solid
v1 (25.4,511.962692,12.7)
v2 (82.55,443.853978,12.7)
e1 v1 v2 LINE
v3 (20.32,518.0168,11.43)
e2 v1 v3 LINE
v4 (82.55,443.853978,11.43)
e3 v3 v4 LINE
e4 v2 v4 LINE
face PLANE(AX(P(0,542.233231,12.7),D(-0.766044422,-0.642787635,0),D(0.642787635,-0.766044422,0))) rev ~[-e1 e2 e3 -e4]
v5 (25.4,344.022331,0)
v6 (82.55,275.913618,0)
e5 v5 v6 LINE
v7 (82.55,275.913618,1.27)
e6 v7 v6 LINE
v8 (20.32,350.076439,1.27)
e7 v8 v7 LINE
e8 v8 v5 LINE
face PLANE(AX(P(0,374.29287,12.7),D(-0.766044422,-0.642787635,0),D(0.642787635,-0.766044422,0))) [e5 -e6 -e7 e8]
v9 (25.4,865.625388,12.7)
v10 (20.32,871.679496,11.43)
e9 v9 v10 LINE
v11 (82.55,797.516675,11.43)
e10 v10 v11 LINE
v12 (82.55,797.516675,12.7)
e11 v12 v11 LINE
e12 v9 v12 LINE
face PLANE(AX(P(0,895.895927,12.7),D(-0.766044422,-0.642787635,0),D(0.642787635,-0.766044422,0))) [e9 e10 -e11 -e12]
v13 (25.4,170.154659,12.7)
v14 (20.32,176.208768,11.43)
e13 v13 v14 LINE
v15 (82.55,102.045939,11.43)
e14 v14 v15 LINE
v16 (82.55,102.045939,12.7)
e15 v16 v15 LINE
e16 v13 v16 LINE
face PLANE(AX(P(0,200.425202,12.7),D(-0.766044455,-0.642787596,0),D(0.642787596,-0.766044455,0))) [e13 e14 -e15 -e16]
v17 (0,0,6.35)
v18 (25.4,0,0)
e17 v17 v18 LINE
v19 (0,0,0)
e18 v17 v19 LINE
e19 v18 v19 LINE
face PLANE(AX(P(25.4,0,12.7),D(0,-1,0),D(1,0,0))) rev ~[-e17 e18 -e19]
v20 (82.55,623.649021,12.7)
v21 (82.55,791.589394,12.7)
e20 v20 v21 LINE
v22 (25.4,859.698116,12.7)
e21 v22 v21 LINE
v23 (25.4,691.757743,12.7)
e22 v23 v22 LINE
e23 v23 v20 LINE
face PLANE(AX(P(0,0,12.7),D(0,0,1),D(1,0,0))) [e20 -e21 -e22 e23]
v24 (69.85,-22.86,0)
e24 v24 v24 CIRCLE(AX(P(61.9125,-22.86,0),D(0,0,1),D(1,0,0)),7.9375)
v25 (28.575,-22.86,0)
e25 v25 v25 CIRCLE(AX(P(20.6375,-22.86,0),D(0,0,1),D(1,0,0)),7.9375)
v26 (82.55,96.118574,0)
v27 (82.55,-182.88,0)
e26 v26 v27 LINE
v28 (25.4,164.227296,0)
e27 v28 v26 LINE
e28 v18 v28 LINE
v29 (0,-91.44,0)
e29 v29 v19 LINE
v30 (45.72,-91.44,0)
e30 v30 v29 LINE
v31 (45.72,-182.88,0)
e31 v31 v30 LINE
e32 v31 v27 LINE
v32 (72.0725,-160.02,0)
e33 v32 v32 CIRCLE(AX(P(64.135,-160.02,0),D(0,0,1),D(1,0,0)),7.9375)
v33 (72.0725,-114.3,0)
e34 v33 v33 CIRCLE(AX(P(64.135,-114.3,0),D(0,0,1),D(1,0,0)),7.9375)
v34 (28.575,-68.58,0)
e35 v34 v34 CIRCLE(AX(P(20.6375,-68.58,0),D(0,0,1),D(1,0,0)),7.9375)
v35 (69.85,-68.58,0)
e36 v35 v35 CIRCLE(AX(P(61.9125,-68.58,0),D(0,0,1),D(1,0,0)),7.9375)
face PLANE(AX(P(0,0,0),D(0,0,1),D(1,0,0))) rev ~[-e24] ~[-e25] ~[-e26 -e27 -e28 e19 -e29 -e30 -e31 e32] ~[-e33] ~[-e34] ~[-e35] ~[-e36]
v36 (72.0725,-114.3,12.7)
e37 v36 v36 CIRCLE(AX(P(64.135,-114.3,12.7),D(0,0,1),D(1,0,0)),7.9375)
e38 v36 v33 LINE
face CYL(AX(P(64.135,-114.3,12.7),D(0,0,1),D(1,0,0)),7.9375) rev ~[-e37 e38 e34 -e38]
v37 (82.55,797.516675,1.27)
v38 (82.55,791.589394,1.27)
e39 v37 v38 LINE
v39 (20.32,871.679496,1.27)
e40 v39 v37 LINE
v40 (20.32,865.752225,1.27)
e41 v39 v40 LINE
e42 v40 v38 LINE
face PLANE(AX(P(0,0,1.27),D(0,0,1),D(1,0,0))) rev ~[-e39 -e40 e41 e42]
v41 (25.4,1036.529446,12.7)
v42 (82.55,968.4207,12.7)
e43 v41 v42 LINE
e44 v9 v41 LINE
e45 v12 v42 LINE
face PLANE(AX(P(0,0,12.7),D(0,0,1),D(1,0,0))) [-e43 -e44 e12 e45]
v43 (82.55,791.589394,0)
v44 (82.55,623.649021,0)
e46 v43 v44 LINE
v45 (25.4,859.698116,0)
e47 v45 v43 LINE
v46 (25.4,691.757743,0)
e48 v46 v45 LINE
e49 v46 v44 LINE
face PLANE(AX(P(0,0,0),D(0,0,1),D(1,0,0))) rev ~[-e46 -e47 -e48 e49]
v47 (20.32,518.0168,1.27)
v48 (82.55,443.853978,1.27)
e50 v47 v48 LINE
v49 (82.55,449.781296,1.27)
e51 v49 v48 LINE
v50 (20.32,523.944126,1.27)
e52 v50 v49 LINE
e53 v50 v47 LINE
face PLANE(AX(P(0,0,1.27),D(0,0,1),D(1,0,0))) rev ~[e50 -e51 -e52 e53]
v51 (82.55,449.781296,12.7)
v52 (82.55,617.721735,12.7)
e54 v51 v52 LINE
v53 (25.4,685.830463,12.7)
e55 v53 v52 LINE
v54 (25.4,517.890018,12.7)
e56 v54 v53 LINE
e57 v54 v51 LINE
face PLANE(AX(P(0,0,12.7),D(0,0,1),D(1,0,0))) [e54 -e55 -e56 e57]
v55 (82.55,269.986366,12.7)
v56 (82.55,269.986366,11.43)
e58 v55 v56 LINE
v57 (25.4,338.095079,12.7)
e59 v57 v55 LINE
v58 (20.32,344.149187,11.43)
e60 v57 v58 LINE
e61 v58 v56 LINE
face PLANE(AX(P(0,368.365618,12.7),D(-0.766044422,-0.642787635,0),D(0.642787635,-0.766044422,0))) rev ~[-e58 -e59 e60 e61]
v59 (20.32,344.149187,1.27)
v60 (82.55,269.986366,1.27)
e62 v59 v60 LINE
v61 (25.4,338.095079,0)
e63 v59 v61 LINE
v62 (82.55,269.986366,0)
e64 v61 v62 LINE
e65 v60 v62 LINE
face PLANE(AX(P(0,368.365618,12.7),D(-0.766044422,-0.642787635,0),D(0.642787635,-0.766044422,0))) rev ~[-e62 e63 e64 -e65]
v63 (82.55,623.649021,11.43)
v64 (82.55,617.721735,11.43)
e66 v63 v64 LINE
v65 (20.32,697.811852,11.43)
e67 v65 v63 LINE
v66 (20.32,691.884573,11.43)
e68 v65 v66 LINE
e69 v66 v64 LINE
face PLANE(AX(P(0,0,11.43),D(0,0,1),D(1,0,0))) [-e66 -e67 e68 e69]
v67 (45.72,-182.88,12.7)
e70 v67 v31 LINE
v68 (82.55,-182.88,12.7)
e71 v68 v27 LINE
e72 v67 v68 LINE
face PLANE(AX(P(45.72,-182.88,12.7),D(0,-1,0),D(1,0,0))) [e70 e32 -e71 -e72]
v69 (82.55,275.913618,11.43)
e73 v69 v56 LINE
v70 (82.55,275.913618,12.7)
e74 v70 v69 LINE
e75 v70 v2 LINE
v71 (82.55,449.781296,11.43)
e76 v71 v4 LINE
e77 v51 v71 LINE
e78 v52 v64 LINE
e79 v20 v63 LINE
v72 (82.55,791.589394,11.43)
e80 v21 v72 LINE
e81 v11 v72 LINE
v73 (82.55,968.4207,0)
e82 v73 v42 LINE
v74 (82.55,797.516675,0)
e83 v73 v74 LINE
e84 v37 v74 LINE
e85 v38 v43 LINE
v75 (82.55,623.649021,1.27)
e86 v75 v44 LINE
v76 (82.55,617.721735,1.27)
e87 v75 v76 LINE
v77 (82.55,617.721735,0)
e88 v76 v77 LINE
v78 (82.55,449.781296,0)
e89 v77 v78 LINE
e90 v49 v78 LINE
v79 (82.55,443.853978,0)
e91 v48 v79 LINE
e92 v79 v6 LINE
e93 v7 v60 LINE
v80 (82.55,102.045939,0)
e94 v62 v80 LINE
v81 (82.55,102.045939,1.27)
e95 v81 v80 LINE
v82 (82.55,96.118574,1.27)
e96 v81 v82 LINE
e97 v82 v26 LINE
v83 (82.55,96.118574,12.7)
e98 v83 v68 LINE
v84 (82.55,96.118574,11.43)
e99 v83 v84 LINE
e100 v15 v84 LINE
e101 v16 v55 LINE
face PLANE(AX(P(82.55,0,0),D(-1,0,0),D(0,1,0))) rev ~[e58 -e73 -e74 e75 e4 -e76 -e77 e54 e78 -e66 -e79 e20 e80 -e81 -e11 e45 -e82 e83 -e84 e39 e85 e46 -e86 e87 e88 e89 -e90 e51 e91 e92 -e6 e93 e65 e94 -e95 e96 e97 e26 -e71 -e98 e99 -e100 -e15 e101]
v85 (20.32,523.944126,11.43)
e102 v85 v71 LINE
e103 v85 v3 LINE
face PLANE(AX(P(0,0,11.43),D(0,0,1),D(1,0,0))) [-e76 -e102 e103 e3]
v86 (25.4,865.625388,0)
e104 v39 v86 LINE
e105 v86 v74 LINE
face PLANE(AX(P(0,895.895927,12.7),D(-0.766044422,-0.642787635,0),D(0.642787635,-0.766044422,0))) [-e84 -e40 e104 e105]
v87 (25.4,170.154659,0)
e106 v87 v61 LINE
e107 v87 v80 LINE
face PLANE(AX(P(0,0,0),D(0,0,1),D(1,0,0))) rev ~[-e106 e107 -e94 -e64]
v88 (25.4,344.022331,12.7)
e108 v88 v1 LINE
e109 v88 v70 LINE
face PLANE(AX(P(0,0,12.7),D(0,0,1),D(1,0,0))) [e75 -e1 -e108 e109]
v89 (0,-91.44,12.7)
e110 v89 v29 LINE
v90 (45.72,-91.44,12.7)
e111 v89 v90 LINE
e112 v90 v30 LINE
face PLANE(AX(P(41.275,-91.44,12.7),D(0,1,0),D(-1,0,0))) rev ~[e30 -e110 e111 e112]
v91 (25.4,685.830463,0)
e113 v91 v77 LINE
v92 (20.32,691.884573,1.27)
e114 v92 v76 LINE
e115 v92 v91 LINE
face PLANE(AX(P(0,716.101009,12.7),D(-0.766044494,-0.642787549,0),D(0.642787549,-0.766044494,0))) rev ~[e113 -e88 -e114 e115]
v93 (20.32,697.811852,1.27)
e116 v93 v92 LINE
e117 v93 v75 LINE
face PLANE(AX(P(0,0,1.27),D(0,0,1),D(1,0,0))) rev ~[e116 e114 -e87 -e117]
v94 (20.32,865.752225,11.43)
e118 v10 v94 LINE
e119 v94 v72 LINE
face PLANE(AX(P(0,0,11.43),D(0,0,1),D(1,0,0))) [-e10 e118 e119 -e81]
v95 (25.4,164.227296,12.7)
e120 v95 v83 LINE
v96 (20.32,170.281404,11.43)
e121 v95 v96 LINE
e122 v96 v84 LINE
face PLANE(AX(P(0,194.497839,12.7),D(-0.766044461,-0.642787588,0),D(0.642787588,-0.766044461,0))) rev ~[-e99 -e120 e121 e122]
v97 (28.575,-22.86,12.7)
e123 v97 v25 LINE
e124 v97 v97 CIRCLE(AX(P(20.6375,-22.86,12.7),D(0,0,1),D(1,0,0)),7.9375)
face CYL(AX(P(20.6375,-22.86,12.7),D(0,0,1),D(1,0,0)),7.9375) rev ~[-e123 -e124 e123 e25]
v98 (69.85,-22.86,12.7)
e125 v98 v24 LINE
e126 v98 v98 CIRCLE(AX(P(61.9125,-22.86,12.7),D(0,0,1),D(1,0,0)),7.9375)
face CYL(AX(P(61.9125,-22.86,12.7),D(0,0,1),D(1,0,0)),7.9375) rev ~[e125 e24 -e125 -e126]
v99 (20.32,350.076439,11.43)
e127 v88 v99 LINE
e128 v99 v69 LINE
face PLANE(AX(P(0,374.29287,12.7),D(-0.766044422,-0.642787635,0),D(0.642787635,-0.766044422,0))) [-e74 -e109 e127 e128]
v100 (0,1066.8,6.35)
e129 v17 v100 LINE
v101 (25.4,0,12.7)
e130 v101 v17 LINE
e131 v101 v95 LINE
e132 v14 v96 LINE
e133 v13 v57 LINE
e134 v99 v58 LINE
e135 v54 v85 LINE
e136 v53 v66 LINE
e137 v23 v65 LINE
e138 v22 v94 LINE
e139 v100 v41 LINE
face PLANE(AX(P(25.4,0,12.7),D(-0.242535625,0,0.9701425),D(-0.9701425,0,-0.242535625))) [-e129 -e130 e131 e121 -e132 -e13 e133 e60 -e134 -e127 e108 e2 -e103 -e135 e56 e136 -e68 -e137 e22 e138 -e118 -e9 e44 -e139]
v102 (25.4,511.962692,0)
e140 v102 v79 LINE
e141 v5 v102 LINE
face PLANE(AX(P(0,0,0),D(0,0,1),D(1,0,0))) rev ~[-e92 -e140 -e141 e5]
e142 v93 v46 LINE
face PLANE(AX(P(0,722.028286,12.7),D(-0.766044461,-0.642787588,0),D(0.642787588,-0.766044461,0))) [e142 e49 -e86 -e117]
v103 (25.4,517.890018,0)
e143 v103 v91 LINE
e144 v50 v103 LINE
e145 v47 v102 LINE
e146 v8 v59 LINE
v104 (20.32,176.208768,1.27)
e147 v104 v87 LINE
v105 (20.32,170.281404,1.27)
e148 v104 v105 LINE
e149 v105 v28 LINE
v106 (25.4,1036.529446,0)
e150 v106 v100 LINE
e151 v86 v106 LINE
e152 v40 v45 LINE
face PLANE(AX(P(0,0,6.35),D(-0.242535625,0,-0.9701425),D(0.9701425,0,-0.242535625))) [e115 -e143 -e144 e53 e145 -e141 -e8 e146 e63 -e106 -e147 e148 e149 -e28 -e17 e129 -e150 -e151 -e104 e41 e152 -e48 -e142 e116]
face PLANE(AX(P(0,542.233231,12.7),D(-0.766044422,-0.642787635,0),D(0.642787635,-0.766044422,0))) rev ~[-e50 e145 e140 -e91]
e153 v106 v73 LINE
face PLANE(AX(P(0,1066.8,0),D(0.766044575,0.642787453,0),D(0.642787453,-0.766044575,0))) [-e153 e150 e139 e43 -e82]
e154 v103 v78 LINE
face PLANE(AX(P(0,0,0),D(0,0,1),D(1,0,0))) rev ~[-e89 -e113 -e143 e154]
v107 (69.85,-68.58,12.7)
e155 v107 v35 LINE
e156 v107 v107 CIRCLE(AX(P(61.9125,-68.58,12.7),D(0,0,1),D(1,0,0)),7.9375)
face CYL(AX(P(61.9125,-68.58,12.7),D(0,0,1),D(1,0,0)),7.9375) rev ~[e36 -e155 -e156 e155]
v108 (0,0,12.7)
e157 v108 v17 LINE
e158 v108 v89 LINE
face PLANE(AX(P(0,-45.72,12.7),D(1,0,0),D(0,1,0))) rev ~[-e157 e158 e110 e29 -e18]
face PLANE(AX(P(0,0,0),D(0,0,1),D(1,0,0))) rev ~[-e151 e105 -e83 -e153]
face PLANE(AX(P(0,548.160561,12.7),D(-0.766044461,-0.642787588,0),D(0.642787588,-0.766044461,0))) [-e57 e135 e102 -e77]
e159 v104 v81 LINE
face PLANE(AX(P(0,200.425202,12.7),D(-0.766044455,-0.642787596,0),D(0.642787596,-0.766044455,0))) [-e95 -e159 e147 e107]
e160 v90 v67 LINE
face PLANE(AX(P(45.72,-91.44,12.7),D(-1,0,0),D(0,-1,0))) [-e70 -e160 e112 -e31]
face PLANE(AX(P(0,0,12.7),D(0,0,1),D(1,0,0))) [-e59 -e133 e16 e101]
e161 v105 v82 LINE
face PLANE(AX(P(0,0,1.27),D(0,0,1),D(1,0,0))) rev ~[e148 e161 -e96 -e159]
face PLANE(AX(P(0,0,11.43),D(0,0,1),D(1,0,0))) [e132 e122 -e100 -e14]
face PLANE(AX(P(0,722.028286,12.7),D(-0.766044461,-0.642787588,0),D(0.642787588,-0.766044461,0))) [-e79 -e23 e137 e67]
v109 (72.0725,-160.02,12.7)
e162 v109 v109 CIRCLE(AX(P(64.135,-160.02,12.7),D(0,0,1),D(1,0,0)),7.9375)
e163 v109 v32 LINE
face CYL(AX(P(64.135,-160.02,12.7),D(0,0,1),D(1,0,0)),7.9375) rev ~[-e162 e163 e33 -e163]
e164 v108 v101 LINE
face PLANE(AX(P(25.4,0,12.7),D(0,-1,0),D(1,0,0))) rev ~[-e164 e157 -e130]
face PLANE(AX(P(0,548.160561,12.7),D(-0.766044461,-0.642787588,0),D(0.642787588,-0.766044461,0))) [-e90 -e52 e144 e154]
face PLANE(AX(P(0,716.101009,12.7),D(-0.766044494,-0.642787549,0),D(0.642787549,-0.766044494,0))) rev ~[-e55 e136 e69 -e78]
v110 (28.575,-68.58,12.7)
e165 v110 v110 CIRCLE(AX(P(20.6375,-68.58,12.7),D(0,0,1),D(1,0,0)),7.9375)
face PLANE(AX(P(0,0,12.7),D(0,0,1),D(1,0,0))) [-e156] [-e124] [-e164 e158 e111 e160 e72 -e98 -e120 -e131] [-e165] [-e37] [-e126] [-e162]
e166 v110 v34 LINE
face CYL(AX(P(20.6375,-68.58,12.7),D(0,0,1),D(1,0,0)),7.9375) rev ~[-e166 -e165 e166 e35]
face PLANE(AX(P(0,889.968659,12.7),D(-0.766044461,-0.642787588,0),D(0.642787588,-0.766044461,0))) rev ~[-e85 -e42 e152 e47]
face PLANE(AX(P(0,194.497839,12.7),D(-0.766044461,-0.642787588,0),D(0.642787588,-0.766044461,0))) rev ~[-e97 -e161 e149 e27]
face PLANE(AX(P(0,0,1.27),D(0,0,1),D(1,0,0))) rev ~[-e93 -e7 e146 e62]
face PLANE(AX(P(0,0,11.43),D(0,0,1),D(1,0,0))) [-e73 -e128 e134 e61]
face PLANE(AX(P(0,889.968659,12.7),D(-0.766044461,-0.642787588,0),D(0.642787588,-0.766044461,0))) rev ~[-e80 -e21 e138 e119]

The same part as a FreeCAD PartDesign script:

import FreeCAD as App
import Part
import Sketcher
from FreeCAD import Vector
Q = App.Units.Quantity

doc = App.newDocument("Part")
body = doc.addObject("PartDesign::Body", "Body")
body.AllowCompound = True

# Sketch on XY plane
sketch1 = doc.addObject("Sketcher::SketchObject", "Sketch")
body.addObject(sketch1)
sketch1.AttachmentSupport = (doc.XY_Plane, [""])
sketch1.MapMode = "FlatFace"
sketch1.addGeometry(Part.LineSegment(Vector(0, 0, 0), Vector(83, 0, 0)), False)
sketch1.addGeometry(Part.LineSegment(Vector(83, 0, 0), Vector(83, 968, 0)), False)
sketch1.addGeometry(Part.LineSegment(Vector(83, 968, 0), Vector(0, 1067, 0)), False)
sketch1.addGeometry(Part.LineSegment(Vector(0, 1067, 0), Vector(0, 0, 0)), False)
sketch1.addConstraint(Sketcher.Constraint("Coincident", 0, 2, 1, 1))
sketch1.addConstraint(Sketcher.Constraint("Coincident", 1, 2, 2, 1))
sketch1.addConstraint(Sketcher.Constraint("Coincident", 2, 2, 3, 1))
sketch1.addConstraint(Sketcher.Constraint("Coincident", 3, 2, 0, 1))
sketch1.addConstraint(Sketcher.Constraint("Horizontal", 0))
sketch1.addConstraint(Sketcher.Constraint("Vertical", 1))
sketch1.addConstraint(Sketcher.Constraint("Vertical", 3))
sketch1.addConstraint(Sketcher.Constraint("Coincident", 3, 2, -1, 1))
sketch1.addConstraint(Sketcher.Constraint("DistanceY", 3, 2, 3, 1, Q("42 in")))
sketch1.addConstraint(Sketcher.Constraint("DistanceX", 0, 1, 0, 2, Q("3.25 in")))
sketch1.addConstraint(Sketcher.Constraint("Angle", 2, Q("130 deg")))
pad1 = doc.addObject("PartDesign::Pad", "Pad")
body.addObject(pad1)
pad1.Profile = sketch1
pad1.Length = Q("0.5 in")

# Sketch on XY plane
sketch2 = doc.addObject("Sketcher::SketchObject", "Sketch001")
body.addObject(sketch2)
sketch2.AttachmentSupport = (doc.XY_Plane, [""])
sketch2.MapMode = "FlatFace"
sketch2.AttachmentOffset = App.Placement(Vector(0, 0, 0.5 * 25.4), App.Rotation())
sketch2.addGeometry(Part.LineSegment(Vector(0, 194, 0), Vector(83, 96, 0)), False)
sketch2.addGeometry(Part.LineSegment(Vector(83, 96, 0), Vector(83, 102, 0)), False)
sketch2.addGeometry(Part.LineSegment(Vector(83, 102, 0), Vector(0, 200, 0)), False)
sketch2.addGeometry(Part.LineSegment(Vector(0, 200, 0), Vector(0, 194, 0)), False)
sketch2.addGeometry(Part.LineSegment(Vector(0, 368, 0), Vector(83, 270, 0)), False)
sketch2.addGeometry(Part.LineSegment(Vector(83, 270, 0), Vector(83, 276, 0)), False)
sketch2.addGeometry(Part.LineSegment(Vector(83, 276, 0), Vector(0, 374, 0)), False)
sketch2.addGeometry(Part.LineSegment(Vector(0, 374, 0), Vector(0, 368, 0)), False)
sketch2.addGeometry(Part.LineSegment(Vector(0, 542, 0), Vector(83, 444, 0)), False)
sketch2.addGeometry(Part.LineSegment(Vector(83, 444, 0), Vector(83, 450, 0)), False)
sketch2.addGeometry(Part.LineSegment(Vector(83, 450, 0), Vector(0, 548, 0)), False)
sketch2.addGeometry(Part.LineSegment(Vector(0, 548, 0), Vector(0, 542, 0)), False)
sketch2.addGeometry(Part.LineSegment(Vector(0, 716, 0), Vector(83, 618, 0)), False)
sketch2.addGeometry(Part.LineSegment(Vector(83, 618, 0), Vector(83, 624, 0)), False)
sketch2.addGeometry(Part.LineSegment(Vector(83, 624, 0), Vector(0, 722, 0)), False)
sketch2.addGeometry(Part.LineSegment(Vector(0, 722, 0), Vector(0, 716, 0)), False)
sketch2.addGeometry(Part.LineSegment(Vector(0, 890, 0), Vector(83, 792, 0)), False)
sketch2.addGeometry(Part.LineSegment(Vector(83, 792, 0), Vector(83, 798, 0)), False)
sketch2.addGeometry(Part.LineSegment(Vector(83, 798, 0), Vector(0, 896, 0)), False)
sketch2.addGeometry(Part.LineSegment(Vector(0, 896, 0), Vector(0, 890, 0)), False)
sketch2.addConstraint(Sketcher.Constraint("Coincident", 0, 2, 1, 1))
sketch2.addConstraint(Sketcher.Constraint("Coincident", 1, 2, 2, 1))
sketch2.addConstraint(Sketcher.Constraint("Coincident", 2, 2, 3, 1))
sketch2.addConstraint(Sketcher.Constraint("Coincident", 3, 2, 0, 1))
sketch2.addConstraint(Sketcher.Constraint("Coincident", 4, 2, 5, 1))
sketch2.addConstraint(Sketcher.Constraint("Coincident", 5, 2, 6, 1))
sketch2.addConstraint(Sketcher.Constraint("Coincident", 6, 2, 7, 1))
sketch2.addConstraint(Sketcher.Constraint("Coincident", 7, 2, 4, 1))
sketch2.addConstraint(Sketcher.Constraint("Coincident", 8, 2, 9, 1))
sketch2.addConstraint(Sketcher.Constraint("Coincident", 9, 2, 10, 1))
sketch2.addConstraint(Sketcher.Constraint("Coincident", 10, 2, 11, 1))
sketch2.addConstraint(Sketcher.Constraint("Coincident", 11, 2, 8, 1))
sketch2.addConstraint(Sketcher.Constraint("Coincident", 12, 2, 13, 1))
sketch2.addConstraint(Sketcher.Constraint("Coincident", 13, 2, 14, 1))
sketch2.addConstraint(Sketcher.Constraint("Coincident", 14, 2, 15, 1))
sketch2.addConstraint(Sketcher.Constraint("Coincident", 15, 2, 12, 1))
sketch2.addConstraint(Sketcher.Constraint("Coincident", 16, 2, 17, 1))
sketch2.addConstraint(Sketcher.Constraint("Coincident", 17, 2, 18, 1))
sketch2.addConstraint(Sketcher.Constraint("Coincident", 18, 2, 19, 1))
sketch2.addConstraint(Sketcher.Constraint("Coincident", 19, 2, 16, 1))
sketch2.addConstraint(Sketcher.Constraint("Vertical", 1))
sketch2.addConstraint(Sketcher.Constraint("Vertical", 3))
sketch2.addConstraint(Sketcher.Constraint("Vertical", 5))
sketch2.addConstraint(Sketcher.Constraint("Vertical", 7))
sketch2.addConstraint(Sketcher.Constraint("Vertical", 9))
sketch2.addConstraint(Sketcher.Constraint("Vertical", 11))
sketch2.addConstraint(Sketcher.Constraint("Vertical", 13))
sketch2.addConstraint(Sketcher.Constraint("Vertical", 15))
sketch2.addConstraint(Sketcher.Constraint("Vertical", 17))
sketch2.addConstraint(Sketcher.Constraint("Vertical", 19))
sketch2.addConstraint(Sketcher.Constraint("PointOnObject", 2, 2, -2))
sketch2.addConstraint(Sketcher.Constraint("PointOnObject", 6, 2, -2))
sketch2.addConstraint(Sketcher.Constraint("PointOnObject", 10, 2, -2))
sketch2.addConstraint(Sketcher.Constraint("PointOnObject", 14, 2, -2))
sketch2.addConstraint(Sketcher.Constraint("PointOnObject", 18, 2, -2))
sketch2.addConstraint(Sketcher.Constraint("Parallel", 0, 2))
sketch2.addConstraint(Sketcher.Constraint("Parallel", 2, 4))
sketch2.addConstraint(Sketcher.Constraint("Parallel", 4, 6))
sketch2.addConstraint(Sketcher.Constraint("Parallel", 6, 8))
sketch2.addConstraint(Sketcher.Constraint("Parallel", 8, 10))
sketch2.addConstraint(Sketcher.Constraint("Parallel", 10, 12))
sketch2.addConstraint(Sketcher.Constraint("Parallel", 12, 14))
sketch2.addConstraint(Sketcher.Constraint("Parallel", 14, 16))
sketch2.addConstraint(Sketcher.Constraint("Parallel", 16, 18))
sketch2.addConstraint(Sketcher.Constraint("Vertical", 1, 2, 4, 2))
sketch2.addConstraint(Sketcher.Constraint("Vertical", 5, 2, 8, 2))
sketch2.addConstraint(Sketcher.Constraint("Vertical", 9, 2, 12, 2))
sketch2.addConstraint(Sketcher.Constraint("Vertical", 13, 2, 16, 2))
sketch2.addConstraint(Sketcher.Constraint("Equal", 3, 5))
sketch2.addConstraint(Sketcher.Constraint("Equal", 7, 9))
sketch2.addConstraint(Sketcher.Constraint("Equal", 11, 13))
sketch2.addConstraint(Sketcher.Constraint("Equal", 15, 17))
sketch2.addConstraint(Sketcher.Constraint("DistanceX", -1, 1, 0, 2, Q("3.25 in")))
sketch2.addConstraint(Sketcher.Constraint("Angle", 0, Q("-50 deg")))
sketch2.addConstraint(Sketcher.Constraint("DistanceY", 3, 2, 4, 2, Q("2.972 in")))
sketch2.addConstraint(Sketcher.Constraint("DistanceY", 11, 2, 12, 2, Q("2.972 in")))
sketch2.addConstraint(Sketcher.Constraint("DistanceY", 1, 1, 1, 2, Q("5.9274 mm")))
sketch2.addConstraint(Sketcher.Constraint("DistanceY", -1, 1, 0, 2, Q("3.7842 in")))
sketch2.addConstraint(Sketcher.Constraint("DistanceY", -1, 1, 13, 2, Q("24.5531 in")))
sketch2.addConstraint(Sketcher.Constraint("DistanceY", -1, 1, 17, 2, Q("31.3983 in")))
pocket1 = doc.addObject("PartDesign::Pocket", "Pocket")
body.addObject(pocket1)
pocket1.Profile = sketch2
pocket1.Length = Q("0.5 in")

# Sketch on XY plane
sketch3 = doc.addObject("Sketcher::SketchObject", "Sketch002")
body.addObject(sketch3)
sketch3.AttachmentSupport = (doc.XY_Plane, [""])
sketch3.MapMode = "FlatFace"
sketch3.AttachmentOffset = App.Placement(Vector(0, 0, 0.5 * 25.4), App.Rotation())
sketch3.addGeometry(Part.LineSegment(Vector(0, 194, 0), Vector(83, 96, 0)), False)
sketch3.addGeometry(Part.LineSegment(Vector(83, 96, 0), Vector(83, 102, 0)), False)
sketch3.addGeometry(Part.LineSegment(Vector(83, 102, 0), Vector(0, 200, 0)), False)
sketch3.addGeometry(Part.LineSegment(Vector(0, 200, 0), Vector(0, 194, 0)), False)
sketch3.addGeometry(Part.LineSegment(Vector(0, 368, 0), Vector(83, 270, 0)), False)
sketch3.addGeometry(Part.LineSegment(Vector(83, 270, 0), Vector(83, 276, 0)), False)
sketch3.addGeometry(Part.LineSegment(Vector(83, 276, 0), Vector(0, 374, 0)), False)
sketch3.addGeometry(Part.LineSegment(Vector(0, 374, 0), Vector(0, 368, 0)), False)
sketch3.addGeometry(Part.LineSegment(Vector(0, 542, 0), Vector(83, 444, 0)), False)
sketch3.addGeometry(Part.LineSegment(Vector(83, 444, 0), Vector(83, 450, 0)), False)
sketch3.addGeometry(Part.LineSegment(Vector(83, 450, 0), Vector(0, 548, 0)), False)
sketch3.addGeometry(Part.LineSegment(Vector(0, 548, 0), Vector(0, 542, 0)), False)
sketch3.addGeometry(Part.LineSegment(Vector(0, 716, 0), Vector(83, 618, 0)), False)
sketch3.addGeometry(Part.LineSegment(Vector(83, 618, 0), Vector(83, 624, 0)), False)
sketch3.addGeometry(Part.LineSegment(Vector(83, 624, 0), Vector(0, 722, 0)), False)
sketch3.addGeometry(Part.LineSegment(Vector(0, 722, 0), Vector(0, 716, 0)), False)
sketch3.addGeometry(Part.LineSegment(Vector(0, 890, 0), Vector(83, 792, 0)), False)
sketch3.addGeometry(Part.LineSegment(Vector(83, 792, 0), Vector(83, 798, 0)), False)
sketch3.addGeometry(Part.LineSegment(Vector(83, 798, 0), Vector(0, 896, 0)), False)
sketch3.addGeometry(Part.LineSegment(Vector(0, 896, 0), Vector(0, 890, 0)), False)
sketch3.addConstraint(Sketcher.Constraint("Coincident", 0, 2, 1, 1))
sketch3.addConstraint(Sketcher.Constraint("Coincident", 1, 2, 2, 1))
sketch3.addConstraint(Sketcher.Constraint("Coincident", 2, 2, 3, 1))
sketch3.addConstraint(Sketcher.Constraint("Coincident", 3, 2, 0, 1))
sketch3.addConstraint(Sketcher.Constraint("Coincident", 4, 2, 5, 1))
sketch3.addConstraint(Sketcher.Constraint("Coincident", 5, 2, 6, 1))
sketch3.addConstraint(Sketcher.Constraint("Coincident", 6, 2, 7, 1))
sketch3.addConstraint(Sketcher.Constraint("Coincident", 7, 2, 4, 1))
sketch3.addConstraint(Sketcher.Constraint("Coincident", 8, 2, 9, 1))
sketch3.addConstraint(Sketcher.Constraint("Coincident", 9, 2, 10, 1))
sketch3.addConstraint(Sketcher.Constraint("Coincident", 10, 2, 11, 1))
sketch3.addConstraint(Sketcher.Constraint("Coincident", 11, 2, 8, 1))
sketch3.addConstraint(Sketcher.Constraint("Coincident", 12, 2, 13, 1))
sketch3.addConstraint(Sketcher.Constraint("Coincident", 13, 2, 14, 1))
sketch3.addConstraint(Sketcher.Constraint("Coincident", 14, 2, 15, 1))
sketch3.addConstraint(Sketcher.Constraint("Coincident", 15, 2, 12, 1))
sketch3.addConstraint(Sketcher.Constraint("Coincident", 16, 2, 17, 1))
sketch3.addConstraint(Sketcher.Constraint("Coincident", 17, 2, 18, 1))
sketch3.addConstraint(Sketcher.Constraint("Coincident", 18, 2, 19, 1))
sketch3.addConstraint(Sketcher.Constraint("Coincident", 19, 2, 16, 1))
sketch3.addConstraint(Sketcher.Constraint("Vertical", 1))
sketch3.addConstraint(Sketcher.Constraint("Vertical", 3))
sketch3.addConstraint(Sketcher.Constraint("Vertical", 5))
sketch3.addConstraint(Sketcher.Constraint("Vertical", 7))
sketch3.addConstraint(Sketcher.Constraint("Vertical", 9))
sketch3.addConstraint(Sketcher.Constraint("Vertical", 11))
sketch3.addConstraint(Sketcher.Constraint("Vertical", 13))
sketch3.addConstraint(Sketcher.Constraint("Vertical", 15))
sketch3.addConstraint(Sketcher.Constraint("Vertical", 17))
sketch3.addConstraint(Sketcher.Constraint("Vertical", 19))
sketch3.addConstraint(Sketcher.Constraint("PointOnObject", 2, 2, -2))
sketch3.addConstraint(Sketcher.Constraint("PointOnObject", 6, 2, -2))
sketch3.addConstraint(Sketcher.Constraint("PointOnObject", 10, 2, -2))
sketch3.addConstraint(Sketcher.Constraint("PointOnObject", 14, 2, -2))
sketch3.addConstraint(Sketcher.Constraint("PointOnObject", 18, 2, -2))
sketch3.addConstraint(Sketcher.Constraint("Parallel", 0, 2))
sketch3.addConstraint(Sketcher.Constraint("Parallel", 2, 4))
sketch3.addConstraint(Sketcher.Constraint("Parallel", 4, 6))
sketch3.addConstraint(Sketcher.Constraint("Parallel", 6, 8))
sketch3.addConstraint(Sketcher.Constraint("Parallel", 8, 10))
sketch3.addConstraint(Sketcher.Constraint("Parallel", 10, 12))
sketch3.addConstraint(Sketcher.Constraint("Parallel", 12, 14))
sketch3.addConstraint(Sketcher.Constraint("Parallel", 14, 16))
sketch3.addConstraint(Sketcher.Constraint("Parallel", 16, 18))
sketch3.addConstraint(Sketcher.Constraint("Vertical", 1, 2, 4, 2))
sketch3.addConstraint(Sketcher.Constraint("Vertical", 5, 2, 8, 2))
sketch3.addConstraint(Sketcher.Constraint("Vertical", 9, 2, 12, 2))
sketch3.addConstraint(Sketcher.Constraint("Vertical", 13, 2, 16, 2))
sketch3.addConstraint(Sketcher.Constraint("Equal", 3, 5))
sketch3.addConstraint(Sketcher.Constraint("Equal", 7, 9))
sketch3.addConstraint(Sketcher.Constraint("Equal", 11, 13))
sketch3.addConstraint(Sketcher.Constraint("Equal", 15, 17))
sketch3.addConstraint(Sketcher.Constraint("DistanceX", -1, 1, 0, 2, Q("3.25 in")))
sketch3.addConstraint(Sketcher.Constraint("Angle", 0, Q("-50 deg")))
sketch3.addConstraint(Sketcher.Constraint("DistanceY", 3, 2, 4, 2, Q("2.972 in")))
sketch3.addConstraint(Sketcher.Constraint("DistanceY", 11, 2, 12, 2, Q("2.972 in")))
sketch3.addConstraint(Sketcher.Constraint("DistanceY", 1, 1, 1, 2, Q("5.9274 mm")))
sketch3.addConstraint(Sketcher.Constraint("DistanceY", -1, 1, 0, 2, Q("3.7842 in")))
sketch3.addConstraint(Sketcher.Constraint("DistanceY", -1, 1, 13, 2, Q("24.5531 in")))
sketch3.addConstraint(Sketcher.Constraint("DistanceY", -1, 1, 17, 2, Q("31.3983 in")))
pad2 = doc.addObject("PartDesign::Pad", "Pad001")
body.addObject(pad2)
pad2.Profile = sketch3
pad2.Length = Q("0.45 in")
pad2.Reversed = True

# Sketch on XY plane
sketch4 = doc.addObject("Sketcher::SketchObject", "Sketch003")
body.addObject(sketch4)
sketch4.AttachmentSupport = (doc.XY_Plane, [""])
sketch4.MapMode = "FlatFace"
sketch4.AttachmentOffset = App.Placement(Vector(0, 0, 0.5 * 25.4), App.Rotation())
sketch4.addGeometry(Part.LineSegment(Vector(0, 194, 0), Vector(83, 96, 0)), False)
sketch4.addGeometry(Part.LineSegment(Vector(83, 96, 0), Vector(83, 102, 0)), False)
sketch4.addGeometry(Part.LineSegment(Vector(83, 102, 0), Vector(0, 200, 0)), False)
sketch4.addGeometry(Part.LineSegment(Vector(0, 200, 0), Vector(0, 194, 0)), False)
sketch4.addGeometry(Part.LineSegment(Vector(0, 368, 0), Vector(83, 270, 0)), False)
sketch4.addGeometry(Part.LineSegment(Vector(83, 270, 0), Vector(83, 276, 0)), False)
sketch4.addGeometry(Part.LineSegment(Vector(83, 276, 0), Vector(0, 374, 0)), False)
sketch4.addGeometry(Part.LineSegment(Vector(0, 374, 0), Vector(0, 368, 0)), False)
sketch4.addGeometry(Part.LineSegment(Vector(0, 542, 0), Vector(83, 444, 0)), False)
sketch4.addGeometry(Part.LineSegment(Vector(83, 444, 0), Vector(83, 450, 0)), False)
sketch4.addGeometry(Part.LineSegment(Vector(83, 450, 0), Vector(0, 548, 0)), False)
sketch4.addGeometry(Part.LineSegment(Vector(0, 548, 0), Vector(0, 542, 0)), False)
sketch4.addGeometry(Part.LineSegment(Vector(0, 716, 0), Vector(83, 618, 0)), False)
sketch4.addGeometry(Part.LineSegment(Vector(83, 618, 0), Vector(83, 624, 0)), False)
sketch4.addGeometry(Part.LineSegment(Vector(83, 624, 0), Vector(0, 722, 0)), False)
sketch4.addGeometry(Part.LineSegment(Vector(0, 722, 0), Vector(0, 716, 0)), False)
sketch4.addGeometry(Part.LineSegment(Vector(0, 890, 0), Vector(83, 792, 0)), False)
sketch4.addGeometry(Part.LineSegment(Vector(83, 792, 0), Vector(83, 798, 0)), False)
sketch4.addGeometry(Part.LineSegment(Vector(83, 798, 0), Vector(0, 896, 0)), False)
sketch4.addGeometry(Part.LineSegment(Vector(0, 896, 0), Vector(0, 890, 0)), False)
sketch4.addConstraint(Sketcher.Constraint("Coincident", 0, 2, 1, 1))
sketch4.addConstraint(Sketcher.Constraint("Coincident", 1, 2, 2, 1))
sketch4.addConstraint(Sketcher.Constraint("Coincident", 2, 2, 3, 1))
sketch4.addConstraint(Sketcher.Constraint("Coincident", 3, 2, 0, 1))
sketch4.addConstraint(Sketcher.Constraint("Coincident", 4, 2, 5, 1))
sketch4.addConstraint(Sketcher.Constraint("Coincident", 5, 2, 6, 1))
sketch4.addConstraint(Sketcher.Constraint("Coincident", 6, 2, 7, 1))
sketch4.addConstraint(Sketcher.Constraint("Coincident", 7, 2, 4, 1))
sketch4.addConstraint(Sketcher.Constraint("Coincident", 8, 2, 9, 1))
sketch4.addConstraint(Sketcher.Constraint("Coincident", 9, 2, 10, 1))
sketch4.addConstraint(Sketcher.Constraint("Coincident", 10, 2, 11, 1))
sketch4.addConstraint(Sketcher.Constraint("Coincident", 11, 2, 8, 1))
sketch4.addConstraint(Sketcher.Constraint("Coincident", 12, 2, 13, 1))
sketch4.addConstraint(Sketcher.Constraint("Coincident", 13, 2, 14, 1))
sketch4.addConstraint(Sketcher.Constraint("Coincident", 14, 2, 15, 1))
sketch4.addConstraint(Sketcher.Constraint("Coincident", 15, 2, 12, 1))
sketch4.addConstraint(Sketcher.Constraint("Coincident", 16, 2, 17, 1))
sketch4.addConstraint(Sketcher.Constraint("Coincident", 17, 2, 18, 1))
sketch4.addConstraint(Sketcher.Constraint("Coincident", 18, 2, 19, 1))
sketch4.addConstraint(Sketcher.Constraint("Coincident", 19, 2, 16, 1))
sketch4.addConstraint(Sketcher.Constraint("Vertical", 1))
sketch4.addConstraint(Sketcher.Constraint("Vertical", 3))
sketch4.addConstraint(Sketcher.Constraint("Vertical", 5))
sketch4.addConstraint(Sketcher.Constraint("Vertical", 7))
sketch4.addConstraint(Sketcher.Constraint("Vertical", 9))
sketch4.addConstraint(Sketcher.Constraint("Vertical", 11))
sketch4.addConstraint(Sketcher.Constraint("Vertical", 13))
sketch4.addConstraint(Sketcher.Constraint("Vertical", 15))
sketch4.addConstraint(Sketcher.Constraint("Vertical", 17))
sketch4.addConstraint(Sketcher.Constraint("Vertical", 19))
sketch4.addConstraint(Sketcher.Constraint("PointOnObject", 2, 2, -2))
sketch4.addConstraint(Sketcher.Constraint("PointOnObject", 6, 2, -2))
sketch4.addConstraint(Sketcher.Constraint("PointOnObject", 10, 2, -2))
sketch4.addConstraint(Sketcher.Constraint("PointOnObject", 14, 2, -2))
sketch4.addConstraint(Sketcher.Constraint("PointOnObject", 18, 2, -2))
sketch4.addConstraint(Sketcher.Constraint("Parallel", 0, 2))
sketch4.addConstraint(Sketcher.Constraint("Parallel", 2, 4))
sketch4.addConstraint(Sketcher.Constraint("Parallel", 4, 6))
sketch4.addConstraint(Sketcher.Constraint("Parallel", 6, 8))
sketch4.addConstraint(Sketcher.Constraint("Parallel", 8, 10))
sketch4.addConstraint(Sketcher.Constraint("Parallel", 10, 12))
sketch4.addConstraint(Sketcher.Constraint("Parallel", 12, 14))
sketch4.addConstraint(Sketcher.Constraint("Parallel", 14, 16))
sketch4.addConstraint(Sketcher.Constraint("Parallel", 16, 18))
sketch4.addConstraint(Sketcher.Constraint("Vertical", 1, 2, 4, 2))
sketch4.addConstraint(Sketcher.Constraint("Vertical", 5, 2, 8, 2))
sketch4.addConstraint(Sketcher.Constraint("Vertical", 9, 2, 12, 2))
sketch4.addConstraint(Sketcher.Constraint("Vertical", 13, 2, 16, 2))
sketch4.addConstraint(Sketcher.Constraint("Equal", 3, 5))
sketch4.addConstraint(Sketcher.Constraint("Equal", 7, 9))
sketch4.addConstraint(Sketcher.Constraint("Equal", 11, 13))
sketch4.addConstraint(Sketcher.Constraint("Equal", 15, 17))
sketch4.addConstraint(Sketcher.Constraint("DistanceX", -1, 1, 0, 2, Q("3.25 in")))
sketch4.addConstraint(Sketcher.Constraint("Angle", 0, Q("-50 deg")))
sketch4.addConstraint(Sketcher.Constraint("DistanceY", 3, 2, 4, 2, Q("2.972 in")))
sketch4.addConstraint(Sketcher.Constraint("DistanceY", 11, 2, 12, 2, Q("2.972 in")))
sketch4.addConstraint(Sketcher.Constraint("DistanceY", 1, 1, 1, 2, Q("5.9274 mm")))
sketch4.addConstraint(Sketcher.Constraint("DistanceY", -1, 1, 0, 2, Q("3.7842 in")))
sketch4.addConstraint(Sketcher.Constraint("DistanceY", -1, 1, 13, 2, Q("24.5531 in")))
sketch4.addConstraint(Sketcher.Constraint("DistanceY", -1, 1, 17, 2, Q("31.3983 in")))
pocket2 = doc.addObject("PartDesign::Pocket", "Pocket001")
body.addObject(pocket2)
pocket2.Profile = sketch4
pocket2.Length = Q("0.05 in")

# Sketch on XZ plane
sketch5 = doc.addObject("Sketcher::SketchObject", "Sketch004")
body.addObject(sketch5)
sketch5.AttachmentSupport = (doc.XZ_Plane, [""])
sketch5.MapMode = "FlatFace"
sketch5.addGeometry(Part.LineSegment(Vector(25, 0, 0), Vector(0, 6, 0)), False)
sketch5.addGeometry(Part.LineSegment(Vector(0, 6, 0), Vector(0, 0, 0)), False)
sketch5.addGeometry(Part.LineSegment(Vector(0, 0, 0), Vector(25, 0, 0)), False)
sketch5.addGeometry(Part.LineSegment(Vector(25, 13, 0), Vector(0, 13, 0)), False)
sketch5.addGeometry(Part.LineSegment(Vector(0, 13, 0), Vector(0, 6, 0)), False)
sketch5.addGeometry(Part.LineSegment(Vector(0, 6, 0), Vector(25, 13, 0)), False)
sketch5.addConstraint(Sketcher.Constraint("Coincident", 0, 2, 1, 1))
sketch5.addConstraint(Sketcher.Constraint("Coincident", 1, 2, 2, 1))
sketch5.addConstraint(Sketcher.Constraint("Coincident", 2, 2, 0, 1))
sketch5.addConstraint(Sketcher.Constraint("Coincident", 3, 2, 4, 1))
sketch5.addConstraint(Sketcher.Constraint("Coincident", 4, 2, 5, 1))
sketch5.addConstraint(Sketcher.Constraint("Coincident", 5, 2, 3, 1))
sketch5.addConstraint(Sketcher.Constraint("Vertical", 1))
sketch5.addConstraint(Sketcher.Constraint("Horizontal", 2))
sketch5.addConstraint(Sketcher.Constraint("Horizontal", 3))
sketch5.addConstraint(Sketcher.Constraint("Vertical", 4))
sketch5.addConstraint(Sketcher.Constraint("Coincident", 1, 2, -1, 1))
sketch5.addConstraint(Sketcher.Constraint("Coincident", 4, 2, 0, 2))
sketch5.addConstraint(Sketcher.Constraint("Vertical", 2, 2, 5, 2))
sketch5.addConstraint(Sketcher.Constraint("Equal", 1, 4))
sketch5.addConstraint(Sketcher.Constraint("DistanceX", 2, 1, 2, 2, Q("1 in")))
sketch5.addConstraint(Sketcher.Constraint("DistanceY", 1, 2, 1, 1, Q("0.25 in")))
pocket3 = doc.addObject("PartDesign::Pocket", "Pocket002")
body.addObject(pocket3)
pocket3.Profile = sketch5
pocket3.Type = "ThroughAll"

# Sketch on XY plane
sketch6 = doc.addObject("Sketcher::SketchObject", "Sketch005")
body.addObject(sketch6)
sketch6.AttachmentSupport = (doc.XY_Plane, [""])
sketch6.MapMode = "FlatFace"
sketch6.AttachmentOffset = App.Placement(Vector(0, 0, 0.5 * 25.4), App.Rotation())
sketch6.addGeometry(Part.LineSegment(Vector(0, 0, 0), Vector(0, -91, 0)), False)
sketch6.addGeometry(Part.LineSegment(Vector(0, -91, 0), Vector(46, -91, 0)), False)
sketch6.addGeometry(Part.LineSegment(Vector(46, -91, 0), Vector(46, -183, 0)), False)
sketch6.addGeometry(Part.LineSegment(Vector(46, -183, 0), Vector(83, -183, 0)), False)
sketch6.addGeometry(Part.LineSegment(Vector(83, -183, 0), Vector(83, 0, 0)), False)
sketch6.addGeometry(Part.LineSegment(Vector(83, 0, 0), Vector(0, 0, 0)), False)
sketch6.addGeometry(Part.Circle(Vector(21, -23, 0), Vector(0, 0, 1), 8), False)
sketch6.addGeometry(Part.Circle(Vector(62, -23, 0), Vector(0, 0, 1), 8), False)
sketch6.addGeometry(Part.Circle(Vector(21, -69, 0), Vector(0, 0, 1), 8), False)
sketch6.addGeometry(Part.Circle(Vector(62, -69, 0), Vector(0, 0, 1), 8), False)
sketch6.addGeometry(Part.Circle(Vector(64, -114, 0), Vector(0, 0, 1), 8), False)
sketch6.addGeometry(Part.Circle(Vector(64, -160, 0), Vector(0, 0, 1), 8), False)
sketch6.addConstraint(Sketcher.Constraint("Coincident", 0, 2, 1, 1))
sketch6.addConstraint(Sketcher.Constraint("Coincident", 1, 2, 2, 1))
sketch6.addConstraint(Sketcher.Constraint("Coincident", 2, 2, 3, 1))
sketch6.addConstraint(Sketcher.Constraint("Coincident", 3, 2, 4, 1))
sketch6.addConstraint(Sketcher.Constraint("Coincident", 4, 2, 5, 1))
sketch6.addConstraint(Sketcher.Constraint("Coincident", 5, 2, 0, 1))
sketch6.addConstraint(Sketcher.Constraint("Vertical", 0))
sketch6.addConstraint(Sketcher.Constraint("Horizontal", 1))
sketch6.addConstraint(Sketcher.Constraint("Vertical", 2))
sketch6.addConstraint(Sketcher.Constraint("Horizontal", 3))
sketch6.addConstraint(Sketcher.Constraint("Vertical", 4))
sketch6.addConstraint(Sketcher.Constraint("Horizontal", 5))
sketch6.addConstraint(Sketcher.Constraint("Coincident", 5, 2, -1, 1))
sketch6.addConstraint(Sketcher.Constraint("Equal", 6, 7))
sketch6.addConstraint(Sketcher.Constraint("Equal", 7, 8))
sketch6.addConstraint(Sketcher.Constraint("Equal", 8, 9))
sketch6.addConstraint(Sketcher.Constraint("Equal", 9, 10))
sketch6.addConstraint(Sketcher.Constraint("Equal", 10, 11))
sketch6.addConstraint(Sketcher.Constraint("Horizontal", 6, 3, 7, 3))
sketch6.addConstraint(Sketcher.Constraint("Horizontal", 8, 3, 9, 3))
sketch6.addConstraint(Sketcher.Constraint("Vertical", 6, 3, 8, 3))
sketch6.addConstraint(Sketcher.Constraint("Vertical", 7, 3, 9, 3))
sketch6.addConstraint(Sketcher.Constraint("Vertical", 10, 3, 11, 3))
sketch6.addConstraint(Sketcher.Constraint("Equal", 0, 2))
sketch6.addConstraint(Sketcher.Constraint("Diameter", 6, Q("0.625 in")))
sketch6.addConstraint(Sketcher.Constraint("DistanceX", 1, 1, 1, 2, Q("1.8 in")))
sketch6.addConstraint(Sketcher.Constraint("DistanceY", 0, 2, 0, 1, Q("3.6 in")))
sketch6.addConstraint(Sketcher.Constraint("DistanceX", 3, 1, 3, 2, Q("1.45 in")))
sketch6.addConstraint(Sketcher.Constraint("DistanceY", 8, 3, 6, 3, Q("1.8 in")))
sketch6.addConstraint(Sketcher.Constraint("DistanceY", 10, 3, 9, 3, Q("1.8 in")))
sketch6.addConstraint(Sketcher.Constraint("DistanceY", 11, 3, 10, 3, Q("1.8 in")))
sketch6.addConstraint(Sketcher.Constraint("DistanceY", 6, 3, -1, 1, Q("0.9 in")))
sketch6.addConstraint(Sketcher.Constraint("DistanceX", -1, 1, 6, 3, Q("0.8125 in")))
sketch6.addConstraint(Sketcher.Constraint("DistanceX", -1, 1, 7, 3, Q("2.4375 in")))
sketch6.addConstraint(Sketcher.Constraint("DistanceX", -1, 1, 10, 3, Q("2.525 in")))
pad3 = doc.addObject("PartDesign::Pad", "Pad002")
body.addObject(pad3)
pad3.Profile = sketch6
pad3.Length = Q("0.5 in")
pad3.Reversed = True

doc.recompute()
